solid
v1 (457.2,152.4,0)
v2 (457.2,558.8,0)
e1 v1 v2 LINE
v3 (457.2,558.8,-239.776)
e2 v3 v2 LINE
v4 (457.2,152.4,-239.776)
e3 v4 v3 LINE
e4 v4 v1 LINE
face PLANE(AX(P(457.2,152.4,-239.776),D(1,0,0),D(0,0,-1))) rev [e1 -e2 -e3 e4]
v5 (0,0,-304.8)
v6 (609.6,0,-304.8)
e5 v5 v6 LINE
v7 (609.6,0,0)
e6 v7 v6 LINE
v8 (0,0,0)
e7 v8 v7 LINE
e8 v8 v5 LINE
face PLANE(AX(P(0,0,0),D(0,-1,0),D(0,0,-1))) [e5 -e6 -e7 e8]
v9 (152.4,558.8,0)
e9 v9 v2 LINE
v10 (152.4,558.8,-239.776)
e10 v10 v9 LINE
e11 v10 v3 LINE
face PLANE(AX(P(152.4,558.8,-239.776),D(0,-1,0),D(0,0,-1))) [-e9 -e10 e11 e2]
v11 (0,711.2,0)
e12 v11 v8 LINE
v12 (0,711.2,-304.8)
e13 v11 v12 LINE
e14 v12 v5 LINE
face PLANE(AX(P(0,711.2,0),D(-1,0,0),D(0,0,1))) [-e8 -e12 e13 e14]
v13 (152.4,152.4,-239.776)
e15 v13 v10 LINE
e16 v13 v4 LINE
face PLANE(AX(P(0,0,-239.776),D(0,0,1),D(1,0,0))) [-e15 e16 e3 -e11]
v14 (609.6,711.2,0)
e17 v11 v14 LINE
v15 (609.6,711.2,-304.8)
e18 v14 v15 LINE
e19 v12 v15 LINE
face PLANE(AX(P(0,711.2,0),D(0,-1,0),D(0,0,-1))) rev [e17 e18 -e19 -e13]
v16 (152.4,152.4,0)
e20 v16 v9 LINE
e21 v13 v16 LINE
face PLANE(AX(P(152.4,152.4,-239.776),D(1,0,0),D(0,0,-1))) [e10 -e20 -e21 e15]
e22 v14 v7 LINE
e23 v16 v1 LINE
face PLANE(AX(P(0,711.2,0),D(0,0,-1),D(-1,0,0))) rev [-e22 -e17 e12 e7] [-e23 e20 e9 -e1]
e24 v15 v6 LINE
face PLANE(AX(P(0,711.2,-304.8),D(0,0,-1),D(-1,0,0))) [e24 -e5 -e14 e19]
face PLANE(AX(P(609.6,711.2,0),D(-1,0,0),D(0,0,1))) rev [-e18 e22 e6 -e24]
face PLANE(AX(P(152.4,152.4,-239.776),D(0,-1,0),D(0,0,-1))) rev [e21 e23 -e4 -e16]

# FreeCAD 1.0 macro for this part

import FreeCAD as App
import Part
import Sketcher

V = App.Vector
Q = App.Units.Quantity


def add_polygon(sketch, points):
    """Adds a closed chain of lines whose ends are joined by coincident constraints."""
    first, n = sketch.GeometryCount, len(points)
    for a, b in zip(points, points[1:] + points[:1]):
        sketch.addGeometry(Part.LineSegment(App.Vector(*a, 0), App.Vector(*b, 0)), False)
    for i in range(n):
        sketch.addConstraint(Sketcher.Constraint("Coincident", first + i, 2, first + (i + 1) % n, 1))

doc = App.newDocument("Part")
params = doc.addObject("Spreadsheet::Sheet", "Params")
for row, (alias, value) in enumerate([
    ("sketch1_width", "24 in"),
    ("sketch1_height", "12 in"),
    ("pad1_length", "28 in"),
    ("sketch2_width", "12 in"),
    ("sketch2_height", "16 in"),
    ("pocket1_length", "9.44 in"),
], start=1):
    params.set(f"A{row}", alias)
    params.set(f"B{row}", "=" + value)
    params.setAlias(f"B{row}", alias)

body = doc.addObject("PartDesign::Body", "Body")

# Sketch on XZ plane
sketch1 = body.newObject("Sketcher::SketchObject", "Sketch")
sketch1.AttachmentSupport = (doc.getObject("XZ_Plane"), [""])
sketch1.MapMode = "FlatFace"
add_polygon(sketch1, [(0, -305), (0, 0), (610, 0), (610, -305)])  # lines 0-3
sketch1.addConstraint([
    Sketcher.Constraint("Vertical", 0),
    Sketcher.Constraint("Horizontal", 1),
    Sketcher.Constraint("Vertical", 2),
    Sketcher.Constraint("Horizontal", 3),
    Sketcher.Constraint("Coincident", 0, 2, -1, 1),
    Sketcher.Constraint("DistanceX", 1, 1, 1, 2, Q("24 in")),
    Sketcher.Constraint("DistanceY", 0, 1, 0, 2, Q("12 in")),
])
sketch1.setExpression("Constraints[9]", "Params.sketch1_width")
sketch1.setExpression("Constraints[10]", "Params.sketch1_height")
pad1 = body.newObject("PartDesign::Pad", "Pad")
pad1.Profile = sketch1
pad1.setExpression("Length", "Params.pad1_length")
pad1.Reversed = True

# Sketch on XY plane
sketch2 = body.newObject("Sketcher::SketchObject", "Sketch001")
sketch2.AttachmentSupport = (doc.getObject("XY_Plane"), [""])
sketch2.MapMode = "FlatFace"
add_polygon(sketch2, [(152, 559), (152, 152), (457, 152), (457, 559)])  # lines 0-3
sketch2.addConstraint([
    Sketcher.Constraint("Vertical", 0),
    Sketcher.Constraint("Horizontal", 1),
    Sketcher.Constraint("Vertical", 2),
    Sketcher.Constraint("Horizontal", 3),
    Sketcher.Constraint("DistanceX", 1, 1, 1, 2, Q("12 in")),
    Sketcher.Constraint("DistanceY", 0, 2, 0, 1, Q("16 in")),
    Sketcher.Constraint("DistanceX", -1, 1, 0, 2, Q("6 in")),
    Sketcher.Constraint("DistanceY", -1, 1, 0, 2, Q("6 in")),
])
sketch2.setExpression("Constraints[8]", "Params.sketch2_width")
sketch2.setExpression("Constraints[9]", "Params.sketch2_height")
pocket1 = body.newObject("PartDesign::Pocket", "Pocket")
pocket1.Profile = sketch2
pocket1.setExpression("Length", "Params.pocket1_length")

doc.recompute()
